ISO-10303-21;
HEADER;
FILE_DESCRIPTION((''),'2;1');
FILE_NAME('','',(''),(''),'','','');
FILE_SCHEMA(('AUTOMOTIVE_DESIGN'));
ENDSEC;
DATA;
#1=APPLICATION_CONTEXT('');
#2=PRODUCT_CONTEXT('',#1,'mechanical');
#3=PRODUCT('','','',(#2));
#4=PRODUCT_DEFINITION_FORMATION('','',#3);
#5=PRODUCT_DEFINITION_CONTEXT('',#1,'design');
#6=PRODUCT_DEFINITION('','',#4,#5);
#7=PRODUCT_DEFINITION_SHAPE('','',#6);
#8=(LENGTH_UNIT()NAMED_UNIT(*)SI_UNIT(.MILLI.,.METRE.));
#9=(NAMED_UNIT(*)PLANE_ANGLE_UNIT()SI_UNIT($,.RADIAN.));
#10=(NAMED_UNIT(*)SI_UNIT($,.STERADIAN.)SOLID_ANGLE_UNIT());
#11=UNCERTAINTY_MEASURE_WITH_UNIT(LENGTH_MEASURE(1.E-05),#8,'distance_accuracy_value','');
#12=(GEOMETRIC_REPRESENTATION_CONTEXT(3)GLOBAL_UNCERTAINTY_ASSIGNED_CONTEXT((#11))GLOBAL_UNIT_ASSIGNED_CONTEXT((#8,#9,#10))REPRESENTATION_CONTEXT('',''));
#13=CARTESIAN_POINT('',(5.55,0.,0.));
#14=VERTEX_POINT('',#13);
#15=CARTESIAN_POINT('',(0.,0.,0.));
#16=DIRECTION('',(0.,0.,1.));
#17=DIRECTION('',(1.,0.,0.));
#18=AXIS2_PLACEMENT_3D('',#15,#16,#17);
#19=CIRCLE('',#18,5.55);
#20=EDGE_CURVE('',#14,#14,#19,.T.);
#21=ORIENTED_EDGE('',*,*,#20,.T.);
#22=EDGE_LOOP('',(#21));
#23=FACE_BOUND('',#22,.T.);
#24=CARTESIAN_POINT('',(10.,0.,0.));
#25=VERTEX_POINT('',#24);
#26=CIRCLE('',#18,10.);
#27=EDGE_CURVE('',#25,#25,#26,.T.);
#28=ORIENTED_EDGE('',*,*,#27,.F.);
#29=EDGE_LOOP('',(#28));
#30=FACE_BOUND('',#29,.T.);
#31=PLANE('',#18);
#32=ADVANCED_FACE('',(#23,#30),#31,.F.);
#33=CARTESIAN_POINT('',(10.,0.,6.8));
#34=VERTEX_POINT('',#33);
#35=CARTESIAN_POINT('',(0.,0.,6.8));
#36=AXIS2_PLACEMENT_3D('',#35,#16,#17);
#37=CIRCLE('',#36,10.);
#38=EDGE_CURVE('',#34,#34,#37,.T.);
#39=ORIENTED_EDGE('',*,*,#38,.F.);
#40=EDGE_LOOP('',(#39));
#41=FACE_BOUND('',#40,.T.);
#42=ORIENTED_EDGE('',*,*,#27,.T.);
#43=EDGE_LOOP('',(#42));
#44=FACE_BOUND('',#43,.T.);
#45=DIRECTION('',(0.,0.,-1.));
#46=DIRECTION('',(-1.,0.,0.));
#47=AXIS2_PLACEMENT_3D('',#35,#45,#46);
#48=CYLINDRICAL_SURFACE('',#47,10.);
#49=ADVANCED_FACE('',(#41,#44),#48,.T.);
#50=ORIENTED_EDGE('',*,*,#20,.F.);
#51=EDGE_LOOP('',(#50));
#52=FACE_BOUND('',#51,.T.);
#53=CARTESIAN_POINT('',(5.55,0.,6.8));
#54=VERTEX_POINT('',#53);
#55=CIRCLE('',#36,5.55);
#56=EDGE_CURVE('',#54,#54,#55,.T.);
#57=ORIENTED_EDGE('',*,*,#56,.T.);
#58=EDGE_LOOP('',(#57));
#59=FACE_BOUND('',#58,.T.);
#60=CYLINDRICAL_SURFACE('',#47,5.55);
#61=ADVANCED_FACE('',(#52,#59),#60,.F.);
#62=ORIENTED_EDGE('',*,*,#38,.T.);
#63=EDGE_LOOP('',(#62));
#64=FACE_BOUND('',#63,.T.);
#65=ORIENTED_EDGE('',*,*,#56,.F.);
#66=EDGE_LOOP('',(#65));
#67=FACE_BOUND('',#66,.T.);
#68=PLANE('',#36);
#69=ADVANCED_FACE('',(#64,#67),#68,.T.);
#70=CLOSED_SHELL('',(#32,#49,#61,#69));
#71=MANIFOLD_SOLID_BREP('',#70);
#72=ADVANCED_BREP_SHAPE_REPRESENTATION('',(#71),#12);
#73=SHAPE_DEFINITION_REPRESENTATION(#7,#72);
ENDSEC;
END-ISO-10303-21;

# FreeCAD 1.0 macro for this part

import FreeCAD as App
import Part
import Sketcher
from FreeCAD import Vector

doc = App.newDocument("Part")
body = doc.addObject("PartDesign::Body", "Body")

# Sketch on XY plane
sketch1 = body.newObject("Sketcher::SketchObject", "Sketch")
sketch1.AttachmentSupport = (doc.getObject("XY_Plane"), [""])
sketch1.MapMode = "FlatFace"
sketch1.addGeometry(Part.Circle(Vector(0, 0, 0), Vector(0, 0, 1), 10), False)
sketch1.addGeometry(Part.Circle(Vector(0, 0, 0), Vector(0, 0, 1), 5.55), False)
sketch1.addConstraint(Sketcher.Constraint("Coincident", 0, 3, -1, 1))
sketch1.addConstraint(Sketcher.Constraint("Coincident", 1, 3, -1, 1))
sketch1.addConstraint(Sketcher.Constraint("Diameter", 0, 20.0))
sketch1.addConstraint(Sketcher.Constraint("Diameter", 1, 11.1))
pad1 = body.newObject("PartDesign::Pad", "Pad")
pad1.Profile = sketch1
pad1.Length = 6.8

doc.recompute()
